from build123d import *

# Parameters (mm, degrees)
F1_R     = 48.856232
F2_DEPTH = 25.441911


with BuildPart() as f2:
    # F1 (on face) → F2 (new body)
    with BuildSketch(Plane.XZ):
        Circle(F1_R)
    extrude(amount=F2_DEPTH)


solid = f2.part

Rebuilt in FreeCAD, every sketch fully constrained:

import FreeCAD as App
import Part
import Sketcher

doc = App.newDocument("Part")
params = doc.addObject("Spreadsheet::Sheet", "Params")
for row, (alias, value) in enumerate([
    ("pad1_length", "25.441911 mm"),
], start=1):
    params.set(f"A{row}", alias)
    params.set(f"B{row}", "=" + value)
    params.setAlias(f"B{row}", alias)

body = doc.addObject("PartDesign::Body", "Body")

sketch1 = body.newObject("Sketcher::SketchObject", "Sketch")
sketch1.AttachmentSupport = (doc.getObject("XZ_Plane"), [""])
sketch1.MapMode = "FlatFace"
sketch1.addGeometry(Part.Circle(App.Vector(0, 0, 0), App.Vector(0, 0, 1), 49), False)
sketch1.addConstraint([
    Sketcher.Constraint("Coincident", 0, 3, -1, 1),
    Sketcher.Constraint("Diameter", 0, 97.712464),
])
pad1 = body.newObject("PartDesign::Pad", "Pad")
pad1.Profile = sketch1
pad1.setExpression("Length", "Params.pad1_length")

doc.recompute()
